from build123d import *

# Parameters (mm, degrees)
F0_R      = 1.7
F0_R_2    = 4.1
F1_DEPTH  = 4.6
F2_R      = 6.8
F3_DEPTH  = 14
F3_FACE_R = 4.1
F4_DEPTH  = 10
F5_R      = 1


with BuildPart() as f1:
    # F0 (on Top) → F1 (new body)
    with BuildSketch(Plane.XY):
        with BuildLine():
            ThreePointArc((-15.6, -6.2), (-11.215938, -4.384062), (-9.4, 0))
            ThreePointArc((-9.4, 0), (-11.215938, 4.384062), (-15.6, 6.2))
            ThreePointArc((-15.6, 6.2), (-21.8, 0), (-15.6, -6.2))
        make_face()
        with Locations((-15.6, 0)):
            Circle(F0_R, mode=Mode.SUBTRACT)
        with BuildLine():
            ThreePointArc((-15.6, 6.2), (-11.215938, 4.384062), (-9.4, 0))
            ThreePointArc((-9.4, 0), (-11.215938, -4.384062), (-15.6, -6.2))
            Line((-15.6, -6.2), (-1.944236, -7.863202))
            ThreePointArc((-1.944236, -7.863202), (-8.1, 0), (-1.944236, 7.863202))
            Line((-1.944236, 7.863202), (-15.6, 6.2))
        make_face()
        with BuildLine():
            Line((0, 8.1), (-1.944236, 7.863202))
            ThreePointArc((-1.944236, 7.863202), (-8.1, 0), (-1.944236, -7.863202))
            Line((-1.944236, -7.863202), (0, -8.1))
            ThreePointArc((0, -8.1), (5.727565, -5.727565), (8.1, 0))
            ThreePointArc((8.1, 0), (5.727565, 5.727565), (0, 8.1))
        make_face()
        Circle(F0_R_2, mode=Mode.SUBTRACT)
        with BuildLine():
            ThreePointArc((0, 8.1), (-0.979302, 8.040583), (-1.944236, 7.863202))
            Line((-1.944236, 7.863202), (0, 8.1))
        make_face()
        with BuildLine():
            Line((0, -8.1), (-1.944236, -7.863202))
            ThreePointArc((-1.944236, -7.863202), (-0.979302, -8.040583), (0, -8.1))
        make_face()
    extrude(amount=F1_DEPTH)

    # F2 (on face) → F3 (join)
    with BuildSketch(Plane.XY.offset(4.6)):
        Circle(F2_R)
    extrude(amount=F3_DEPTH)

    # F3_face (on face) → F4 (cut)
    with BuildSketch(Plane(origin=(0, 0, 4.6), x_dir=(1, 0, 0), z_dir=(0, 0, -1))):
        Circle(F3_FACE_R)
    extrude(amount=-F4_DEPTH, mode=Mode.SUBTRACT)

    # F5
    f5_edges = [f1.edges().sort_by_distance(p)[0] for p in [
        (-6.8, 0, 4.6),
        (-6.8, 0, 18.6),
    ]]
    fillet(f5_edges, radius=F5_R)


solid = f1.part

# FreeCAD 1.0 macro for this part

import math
import FreeCAD as App
import Part
import Sketcher

V = App.Vector
Q = App.Units.Quantity


def edges_at(feature, points):
    """Names of the edges that pass closest to the given points."""
    edges = feature.Shape.Edges
    near = lambda p: min(range(len(edges)), key=lambda i: edges[i].distToShape(Part.Vertex(*p))[0])
    return sorted({f"Edge{near(p) + 1}" for p in points})

doc = App.newDocument("Part")
params = doc.addObject("Spreadsheet::Sheet", "Params")
for row, (alias, value) in enumerate([
    ("sketch1_diameter", "3.4 mm"),
    ("sketch1_diameter2", "8.2 mm"),
    ("sketch1_radius", "6.2 mm"),
    ("sketch1_radius2", "8.1 mm"),
    ("pad1_length", "4.6 mm"),
    ("sketch2_diameter", "13.6 mm"),
    ("pad2_length", "14 mm"),
    ("sketch3_diameter", "8.2 mm"),
    ("pocket1_length", "10 mm"),
    ("fillet_radius", "1 mm"),
], start=1):
    params.set(f"A{row}", alias)
    params.set(f"B{row}", "=" + value)
    params.setAlias(f"B{row}", alias)

body = doc.addObject("PartDesign::Body", "Body")

# Sketch on XY plane
sketch1 = body.newObject("Sketcher::SketchObject", "Sketch")
sketch1.AttachmentSupport = (doc.getObject("XY_Plane"), [""])
sketch1.MapMode = "FlatFace"
sketch1.addGeometry([
    Part.ArcOfCircle(Part.Circle(V(-15.6, 0, 0), V(0, 0, 1), 6.2), math.radians(90), math.radians(270)),  # 0
    Part.LineSegment(V(-15.6, -6.2, 0), V(-1.9, -7.9, 0)),  # 1
    Part.ArcOfCircle(Part.Circle(V(0, 0, 0), V(0, 0, 1), 8.1), math.radians(-103.89), math.radians(-90)),  # 2
    Part.ArcOfCircle(Part.Circle(V(0, 0, 0), V(0, 0, 1), 8.1), math.radians(-90), math.radians(0)),  # 3
    Part.ArcOfCircle(Part.Circle(V(0, 0, 0), V(0, 0, 1), 8.1), math.radians(0), math.radians(90)),  # 4
    Part.ArcOfCircle(Part.Circle(V(0, 0, 0), V(0, 0, 1), 8.1), math.radians(90), math.radians(103.89)),  # 5
    Part.LineSegment(V(-1.9, 7.9, 0), V(-15.6, 6.2, 0)),  # 6
    Part.Circle(V(-15.6, 0, 0), V(0, 0, 1), 1.7),  # 7
    Part.Circle(V(0, 0, 0), V(0, 0, 1), 4.1),  # 8
], False)
sketch1.addConstraint([
    Sketcher.Constraint("Coincident", 0, 2, 1, 1),
    Sketcher.Constraint("Coincident", 1, 2, 2, 1),
    Sketcher.Constraint("Tangent", 2, 2, 3, 1),
    Sketcher.Constraint("Tangent", 3, 2, 4, 1),
    Sketcher.Constraint("Tangent", 4, 2, 5, 1),
    Sketcher.Constraint("Coincident", 5, 2, 6, 1),
    Sketcher.Constraint("Coincident", 6, 2, 0, 1),
    Sketcher.Constraint("Coincident", 3, 3, -1, 1),
    Sketcher.Constraint("Coincident", 8, 3, -1, 1),
    Sketcher.Constraint("Coincident", 7, 3, 0, 3),
    Sketcher.Constraint("Equal", 3, 4),
    Sketcher.Constraint("Equal", 2, 5),
    Sketcher.Constraint("Symmetric", 0, 2, 6, 2, -1),
    Sketcher.Constraint("PointOnObject", 2, 2, -2),
    Sketcher.Constraint("PointOnObject", 3, 2, -1),
    Sketcher.Constraint("PointOnObject", 4, 2, -2),
    Sketcher.Constraint("Vertical", 7, 3, 0, 2),
    Sketcher.Constraint("Vertical", 1, 2, 5, 2),
    Sketcher.Constraint("Diameter", 7, Q("3.4 mm")),
    Sketcher.Constraint("Diameter", 8, Q("8.2 mm")),
    Sketcher.Constraint("Radius", 0, Q("6.2 mm")),
    Sketcher.Constraint("Radius", 3, Q("8.1 mm")),
    Sketcher.Constraint("DistanceX", 0, 3, -1, 1, Q("15.6 mm")),
    Sketcher.Constraint("Radius", 2, Q("8.099935 mm")),
    Sketcher.Constraint("DistanceY", 1, 2, 3, 3, Q("7.863202 mm")),
])
sketch1.setExpression("Constraints[18]", "Params.sketch1_diameter")
sketch1.setExpression("Constraints[19]", "Params.sketch1_diameter2")
sketch1.setExpression("Constraints[20]", "Params.sketch1_radius")
sketch1.setExpression("Constraints[21]", "Params.sketch1_radius2")
pad1 = body.newObject("PartDesign::Pad", "Pad")
pad1.Profile = sketch1
pad1.setExpression("Length", "Params.pad1_length")

# Sketch on XY plane
sketch2 = body.newObject("Sketcher::SketchObject", "Sketch001")
sketch2.AttachmentSupport = (doc.getObject("XY_Plane"), [""])
sketch2.MapMode = "FlatFace"
sketch2.AttachmentOffset = App.Placement(V(0, 0, 4.6), App.Rotation())
sketch2.addGeometry(Part.Circle(V(0, 0, 0), V(0, 0, 1), 7), False)
sketch2.addConstraint([
    Sketcher.Constraint("Coincident", 0, 3, -1, 1),
    Sketcher.Constraint("Diameter", 0, Q("13.6 mm")),
])
sketch2.setExpression("Constraints[1]", "Params.sketch2_diameter")
pad2 = body.newObject("PartDesign::Pad", "Pad001")
pad2.Profile = sketch2
pad2.setExpression("Length", "Params.pad2_length")

# Sketch on XY plane
sketch3 = body.newObject("Sketcher::SketchObject", "Sketch002")
sketch3.AttachmentSupport = (doc.getObject("XY_Plane"), [""])
sketch3.MapMode = "FlatFace"
sketch3.AttachmentOffset = App.Placement(V(0, 0, 4.6), App.Rotation())
sketch3.addGeometry(Part.Circle(V(0, 0, 0), V(0, 0, 1), 4.1), False)
sketch3.addConstraint([
    Sketcher.Constraint("Coincident", 0, 3, -1, 1),
    Sketcher.Constraint("Diameter", 0, Q("8.2 mm")),
])
sketch3.setExpression("Constraints[1]", "Params.sketch3_diameter")
pocket1 = body.newObject("PartDesign::Pocket", "Pocket")
pocket1.Profile = sketch3
pocket1.setExpression("Length", "Params.pocket1_length")
pocket1.Reversed = True
doc.recompute()

fillet = body.newObject("PartDesign::Fillet", "Fillet")
fillet.Base = (pocket1, edges_at(pocket1, [(-6.8, 0, 4.6), (-6.8, 0, 18.6)]))
fillet.setExpression("Radius", "Params.fillet_radius")

doc.recompute()
